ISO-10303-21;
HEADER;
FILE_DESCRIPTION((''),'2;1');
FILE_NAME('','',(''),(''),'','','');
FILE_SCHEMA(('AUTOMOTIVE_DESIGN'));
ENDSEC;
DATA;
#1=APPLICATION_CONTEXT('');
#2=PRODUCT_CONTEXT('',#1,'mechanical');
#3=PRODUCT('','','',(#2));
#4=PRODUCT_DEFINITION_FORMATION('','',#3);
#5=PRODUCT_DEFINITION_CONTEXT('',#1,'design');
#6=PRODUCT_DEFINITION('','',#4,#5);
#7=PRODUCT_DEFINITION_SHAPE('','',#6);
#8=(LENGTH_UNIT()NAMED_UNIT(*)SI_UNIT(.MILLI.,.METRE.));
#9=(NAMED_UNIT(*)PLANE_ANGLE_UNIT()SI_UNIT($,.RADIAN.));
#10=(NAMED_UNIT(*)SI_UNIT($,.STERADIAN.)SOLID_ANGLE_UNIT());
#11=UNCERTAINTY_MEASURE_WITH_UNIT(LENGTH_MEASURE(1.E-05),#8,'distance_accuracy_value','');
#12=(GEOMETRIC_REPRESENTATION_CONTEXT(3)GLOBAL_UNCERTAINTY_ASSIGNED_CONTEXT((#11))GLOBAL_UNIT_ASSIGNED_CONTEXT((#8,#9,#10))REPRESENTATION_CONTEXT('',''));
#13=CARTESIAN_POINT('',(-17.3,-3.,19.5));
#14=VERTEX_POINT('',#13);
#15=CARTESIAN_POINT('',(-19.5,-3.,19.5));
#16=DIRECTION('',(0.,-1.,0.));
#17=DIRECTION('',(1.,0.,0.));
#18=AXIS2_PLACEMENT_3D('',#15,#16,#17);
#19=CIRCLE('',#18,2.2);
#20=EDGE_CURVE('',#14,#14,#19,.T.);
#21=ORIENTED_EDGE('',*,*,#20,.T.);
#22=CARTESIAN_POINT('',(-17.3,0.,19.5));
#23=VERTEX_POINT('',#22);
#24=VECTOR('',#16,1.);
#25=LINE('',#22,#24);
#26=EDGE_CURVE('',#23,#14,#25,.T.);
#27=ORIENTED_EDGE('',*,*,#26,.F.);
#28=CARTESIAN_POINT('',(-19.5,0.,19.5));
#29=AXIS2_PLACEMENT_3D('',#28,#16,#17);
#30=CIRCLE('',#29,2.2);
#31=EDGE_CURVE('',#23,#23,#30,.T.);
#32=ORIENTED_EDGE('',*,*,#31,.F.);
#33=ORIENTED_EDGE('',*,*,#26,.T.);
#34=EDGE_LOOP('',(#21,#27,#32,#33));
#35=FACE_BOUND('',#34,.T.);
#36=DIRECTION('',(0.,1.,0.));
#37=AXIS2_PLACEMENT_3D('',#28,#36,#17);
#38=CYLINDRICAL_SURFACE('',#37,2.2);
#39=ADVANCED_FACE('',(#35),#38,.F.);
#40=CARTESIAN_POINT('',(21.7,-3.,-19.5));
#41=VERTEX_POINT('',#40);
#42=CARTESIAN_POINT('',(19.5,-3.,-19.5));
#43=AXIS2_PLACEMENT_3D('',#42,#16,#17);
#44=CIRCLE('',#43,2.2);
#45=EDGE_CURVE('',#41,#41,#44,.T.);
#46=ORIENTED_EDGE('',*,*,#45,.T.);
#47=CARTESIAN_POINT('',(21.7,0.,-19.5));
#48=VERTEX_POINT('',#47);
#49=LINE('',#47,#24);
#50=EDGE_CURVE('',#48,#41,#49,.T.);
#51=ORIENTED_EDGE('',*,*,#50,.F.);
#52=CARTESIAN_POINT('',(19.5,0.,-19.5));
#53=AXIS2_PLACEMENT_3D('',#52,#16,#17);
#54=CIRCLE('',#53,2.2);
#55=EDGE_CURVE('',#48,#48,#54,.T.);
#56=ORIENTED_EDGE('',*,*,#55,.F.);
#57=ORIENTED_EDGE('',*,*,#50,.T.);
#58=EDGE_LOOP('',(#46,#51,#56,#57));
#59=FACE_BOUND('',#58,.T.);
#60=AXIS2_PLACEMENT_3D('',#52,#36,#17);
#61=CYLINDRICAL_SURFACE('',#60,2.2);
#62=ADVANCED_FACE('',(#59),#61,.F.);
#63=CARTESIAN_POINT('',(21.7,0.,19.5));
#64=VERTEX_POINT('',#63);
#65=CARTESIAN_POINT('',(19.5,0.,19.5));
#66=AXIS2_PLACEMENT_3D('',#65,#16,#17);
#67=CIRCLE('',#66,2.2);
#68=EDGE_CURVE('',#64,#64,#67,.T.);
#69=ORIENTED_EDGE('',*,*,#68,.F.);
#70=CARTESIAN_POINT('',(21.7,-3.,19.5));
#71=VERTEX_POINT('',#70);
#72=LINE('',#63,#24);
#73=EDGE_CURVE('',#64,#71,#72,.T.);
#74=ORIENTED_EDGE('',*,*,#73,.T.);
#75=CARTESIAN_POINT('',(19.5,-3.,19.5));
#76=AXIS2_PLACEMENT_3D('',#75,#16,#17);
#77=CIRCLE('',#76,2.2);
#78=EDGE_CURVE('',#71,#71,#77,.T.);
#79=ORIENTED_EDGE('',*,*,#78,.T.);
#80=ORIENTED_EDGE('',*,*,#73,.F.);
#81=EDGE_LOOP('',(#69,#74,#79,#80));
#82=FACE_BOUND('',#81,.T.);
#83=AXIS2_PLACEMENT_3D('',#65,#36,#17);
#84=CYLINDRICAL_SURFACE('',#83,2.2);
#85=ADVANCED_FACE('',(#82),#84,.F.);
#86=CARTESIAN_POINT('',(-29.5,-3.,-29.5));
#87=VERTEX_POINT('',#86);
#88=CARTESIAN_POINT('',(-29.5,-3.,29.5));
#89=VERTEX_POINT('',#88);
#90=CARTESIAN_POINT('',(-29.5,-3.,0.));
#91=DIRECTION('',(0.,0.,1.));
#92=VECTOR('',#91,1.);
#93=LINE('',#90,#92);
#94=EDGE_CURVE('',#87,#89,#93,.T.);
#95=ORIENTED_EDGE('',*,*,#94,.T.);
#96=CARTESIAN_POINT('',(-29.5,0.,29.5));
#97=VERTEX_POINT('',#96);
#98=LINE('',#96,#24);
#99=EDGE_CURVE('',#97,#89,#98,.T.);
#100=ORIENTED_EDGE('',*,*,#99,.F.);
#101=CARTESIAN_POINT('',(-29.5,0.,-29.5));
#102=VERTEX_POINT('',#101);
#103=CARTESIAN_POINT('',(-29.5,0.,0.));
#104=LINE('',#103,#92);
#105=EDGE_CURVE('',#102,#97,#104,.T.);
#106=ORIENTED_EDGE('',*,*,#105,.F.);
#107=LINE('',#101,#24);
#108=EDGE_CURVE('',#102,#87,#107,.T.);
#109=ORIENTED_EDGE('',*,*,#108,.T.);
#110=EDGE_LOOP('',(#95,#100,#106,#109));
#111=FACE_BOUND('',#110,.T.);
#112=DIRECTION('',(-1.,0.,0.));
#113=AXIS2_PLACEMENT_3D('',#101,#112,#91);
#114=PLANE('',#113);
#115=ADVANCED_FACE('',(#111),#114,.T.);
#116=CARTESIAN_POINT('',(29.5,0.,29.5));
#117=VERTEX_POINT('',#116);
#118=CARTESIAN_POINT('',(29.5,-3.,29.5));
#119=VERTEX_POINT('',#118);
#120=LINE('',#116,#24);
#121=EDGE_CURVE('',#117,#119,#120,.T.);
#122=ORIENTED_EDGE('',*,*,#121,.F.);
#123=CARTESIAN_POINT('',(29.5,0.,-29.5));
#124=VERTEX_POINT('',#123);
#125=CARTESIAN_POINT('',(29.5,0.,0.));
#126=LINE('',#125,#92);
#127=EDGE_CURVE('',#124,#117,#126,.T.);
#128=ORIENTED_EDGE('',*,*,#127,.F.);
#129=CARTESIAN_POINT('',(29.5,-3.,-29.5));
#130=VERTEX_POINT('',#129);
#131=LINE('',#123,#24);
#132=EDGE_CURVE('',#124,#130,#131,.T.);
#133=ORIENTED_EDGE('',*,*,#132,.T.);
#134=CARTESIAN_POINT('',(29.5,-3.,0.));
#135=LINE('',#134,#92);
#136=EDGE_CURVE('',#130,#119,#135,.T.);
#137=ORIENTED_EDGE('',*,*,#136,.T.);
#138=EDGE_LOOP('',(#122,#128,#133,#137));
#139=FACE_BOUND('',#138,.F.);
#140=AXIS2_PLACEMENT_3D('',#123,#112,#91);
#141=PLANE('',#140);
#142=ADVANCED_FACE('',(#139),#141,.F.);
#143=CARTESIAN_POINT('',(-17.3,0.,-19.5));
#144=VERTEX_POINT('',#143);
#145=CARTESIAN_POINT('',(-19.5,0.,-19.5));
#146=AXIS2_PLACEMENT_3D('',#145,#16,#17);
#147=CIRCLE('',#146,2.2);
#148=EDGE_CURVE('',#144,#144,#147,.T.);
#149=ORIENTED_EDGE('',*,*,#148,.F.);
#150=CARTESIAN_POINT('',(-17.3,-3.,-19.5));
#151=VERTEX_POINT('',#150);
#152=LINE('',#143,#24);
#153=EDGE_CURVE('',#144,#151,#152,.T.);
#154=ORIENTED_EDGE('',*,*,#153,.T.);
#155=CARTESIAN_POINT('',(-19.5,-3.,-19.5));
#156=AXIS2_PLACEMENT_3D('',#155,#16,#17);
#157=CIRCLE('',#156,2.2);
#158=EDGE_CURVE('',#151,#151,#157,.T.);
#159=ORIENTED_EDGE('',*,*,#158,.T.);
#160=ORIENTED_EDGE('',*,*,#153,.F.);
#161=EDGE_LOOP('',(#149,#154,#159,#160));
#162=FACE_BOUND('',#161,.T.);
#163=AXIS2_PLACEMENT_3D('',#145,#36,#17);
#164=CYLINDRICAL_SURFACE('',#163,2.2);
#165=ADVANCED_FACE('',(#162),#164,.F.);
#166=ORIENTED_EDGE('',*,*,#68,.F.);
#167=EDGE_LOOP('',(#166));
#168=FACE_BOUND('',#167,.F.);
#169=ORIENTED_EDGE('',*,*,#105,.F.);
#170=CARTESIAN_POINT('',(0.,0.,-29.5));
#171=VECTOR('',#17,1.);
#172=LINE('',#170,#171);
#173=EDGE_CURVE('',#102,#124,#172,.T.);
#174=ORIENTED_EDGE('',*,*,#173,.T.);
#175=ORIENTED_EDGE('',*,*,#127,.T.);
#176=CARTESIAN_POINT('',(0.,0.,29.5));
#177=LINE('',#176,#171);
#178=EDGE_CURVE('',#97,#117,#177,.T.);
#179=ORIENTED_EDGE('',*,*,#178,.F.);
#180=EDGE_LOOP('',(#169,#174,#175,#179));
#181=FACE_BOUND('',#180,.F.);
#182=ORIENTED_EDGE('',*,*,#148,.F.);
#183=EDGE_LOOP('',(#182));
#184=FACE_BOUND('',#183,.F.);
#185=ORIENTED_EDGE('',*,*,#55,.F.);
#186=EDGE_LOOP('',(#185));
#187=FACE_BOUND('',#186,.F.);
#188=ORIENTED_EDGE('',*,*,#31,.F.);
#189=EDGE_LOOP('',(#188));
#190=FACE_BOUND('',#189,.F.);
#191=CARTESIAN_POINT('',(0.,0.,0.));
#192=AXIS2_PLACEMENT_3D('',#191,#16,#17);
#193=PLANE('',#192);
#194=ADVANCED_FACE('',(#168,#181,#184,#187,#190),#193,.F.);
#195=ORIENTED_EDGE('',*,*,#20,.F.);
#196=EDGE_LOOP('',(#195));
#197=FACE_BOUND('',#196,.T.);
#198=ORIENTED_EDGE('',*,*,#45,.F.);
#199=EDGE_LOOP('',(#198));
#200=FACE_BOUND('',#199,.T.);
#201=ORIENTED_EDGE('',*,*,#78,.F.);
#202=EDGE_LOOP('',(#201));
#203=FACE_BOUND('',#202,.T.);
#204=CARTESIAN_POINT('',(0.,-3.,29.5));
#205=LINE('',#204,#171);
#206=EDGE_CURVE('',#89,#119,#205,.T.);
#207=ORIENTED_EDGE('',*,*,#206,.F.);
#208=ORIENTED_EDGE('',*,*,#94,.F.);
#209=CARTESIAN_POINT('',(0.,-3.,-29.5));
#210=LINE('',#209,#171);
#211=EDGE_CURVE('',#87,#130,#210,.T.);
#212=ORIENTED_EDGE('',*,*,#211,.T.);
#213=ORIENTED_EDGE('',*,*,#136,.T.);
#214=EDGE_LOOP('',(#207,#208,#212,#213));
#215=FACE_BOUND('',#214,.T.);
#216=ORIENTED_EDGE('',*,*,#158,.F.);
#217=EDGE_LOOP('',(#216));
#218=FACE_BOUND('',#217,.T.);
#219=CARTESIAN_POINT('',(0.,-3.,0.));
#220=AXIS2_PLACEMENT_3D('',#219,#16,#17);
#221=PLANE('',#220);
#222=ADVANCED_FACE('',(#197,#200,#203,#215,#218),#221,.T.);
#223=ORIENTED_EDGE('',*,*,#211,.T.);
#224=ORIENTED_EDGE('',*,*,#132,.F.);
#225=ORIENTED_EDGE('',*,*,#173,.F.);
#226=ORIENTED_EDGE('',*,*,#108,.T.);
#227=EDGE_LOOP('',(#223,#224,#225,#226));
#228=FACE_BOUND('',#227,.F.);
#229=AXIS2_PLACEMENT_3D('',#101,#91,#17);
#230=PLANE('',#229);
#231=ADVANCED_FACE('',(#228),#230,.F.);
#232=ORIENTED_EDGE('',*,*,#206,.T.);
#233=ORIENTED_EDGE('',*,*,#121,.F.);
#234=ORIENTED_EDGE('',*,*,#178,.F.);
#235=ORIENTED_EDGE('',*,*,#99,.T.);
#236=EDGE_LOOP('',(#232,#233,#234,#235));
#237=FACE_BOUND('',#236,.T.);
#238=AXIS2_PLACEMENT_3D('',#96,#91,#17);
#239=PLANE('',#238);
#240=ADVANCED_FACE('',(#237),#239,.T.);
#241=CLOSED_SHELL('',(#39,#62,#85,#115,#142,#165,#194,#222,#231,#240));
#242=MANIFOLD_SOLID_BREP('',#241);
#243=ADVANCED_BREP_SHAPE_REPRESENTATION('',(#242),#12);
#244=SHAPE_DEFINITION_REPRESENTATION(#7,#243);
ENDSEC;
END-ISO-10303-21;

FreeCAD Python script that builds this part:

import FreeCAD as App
import Part
import Sketcher
from FreeCAD import Vector


def add_polygon(sketch, points):
    """Adds a closed chain of lines whose ends are joined by coincident constraints."""
    first, n = sketch.GeometryCount, len(points)
    for a, b in zip(points, points[1:] + points[:1]):
        sketch.addGeometry(Part.LineSegment(App.Vector(*a, 0), App.Vector(*b, 0)), False)
    for i in range(n):
        sketch.addConstraint(Sketcher.Constraint("Coincident", first + i, 2, first + (i + 1) % n, 1))

doc = App.newDocument("Part")
body = doc.addObject("PartDesign::Body", "Body")

# Sketch on XZ plane
sketch1 = doc.addObject("Sketcher::SketchObject", "Sketch")
body.addObject(sketch1)
sketch1.AttachmentSupport = (doc.XZ_Plane, [""])
sketch1.MapMode = "FlatFace"
add_polygon(sketch1, [(-29.5, 29.5), (-29.5, -29.5), (29.5, -29.5), (29.5, 29.5)])  # lines 0-3
sketch1.addGeometry(Part.Circle(Vector(-19.5, -19.5, 0), Vector(0, 0, 1), 2.2), False)  # 4
sketch1.addGeometry(Part.Circle(Vector(19.5, -19.5, 0), Vector(0, 0, 1), 2.2), False)  # 5
sketch1.addGeometry(Part.Circle(Vector(-19.5, 19.5, 0), Vector(0, 0, 1), 2.2), False)  # 6
sketch1.addGeometry(Part.Circle(Vector(19.5, 19.5, 0), Vector(0, 0, 1), 2.2), False)  # 7
sketch1.addConstraint([
    Sketcher.Constraint("Vertical", 0),
    Sketcher.Constraint("Horizontal", 1),
    Sketcher.Constraint("Vertical", 2),
    Sketcher.Constraint("Horizontal", 3),
    Sketcher.Constraint("Equal", 4, 5),
    Sketcher.Constraint("Equal", 5, 6),
    Sketcher.Constraint("Equal", 6, 7),
    Sketcher.Constraint("Symmetric", 5, 3, 6, 3, -1, 1),
    Sketcher.Constraint("Symmetric", 4, 3, 7, 3, -1, 1),
    Sketcher.Constraint("Symmetric", 0, 2, 2, 2, -1, 1),
    Sketcher.Constraint("Symmetric", 4, 3, 5, 3, -2),
    Sketcher.Constraint("Equal", 3, 0),
    Sketcher.Constraint("Diameter", 4, 4.4),
    Sketcher.Constraint("DistanceX", 1, 1, 1, 2, 59.0),
    Sketcher.Constraint("DistanceX", 4, 3, 5, 3, 39.0),
    Sketcher.Constraint("DistanceY", 4, 3, 6, 3, 39.0),
])
pad1 = doc.addObject("PartDesign::Pad", "Pad")
body.addObject(pad1)
pad1.Profile = sketch1
pad1.Length = 3

doc.recompute()
